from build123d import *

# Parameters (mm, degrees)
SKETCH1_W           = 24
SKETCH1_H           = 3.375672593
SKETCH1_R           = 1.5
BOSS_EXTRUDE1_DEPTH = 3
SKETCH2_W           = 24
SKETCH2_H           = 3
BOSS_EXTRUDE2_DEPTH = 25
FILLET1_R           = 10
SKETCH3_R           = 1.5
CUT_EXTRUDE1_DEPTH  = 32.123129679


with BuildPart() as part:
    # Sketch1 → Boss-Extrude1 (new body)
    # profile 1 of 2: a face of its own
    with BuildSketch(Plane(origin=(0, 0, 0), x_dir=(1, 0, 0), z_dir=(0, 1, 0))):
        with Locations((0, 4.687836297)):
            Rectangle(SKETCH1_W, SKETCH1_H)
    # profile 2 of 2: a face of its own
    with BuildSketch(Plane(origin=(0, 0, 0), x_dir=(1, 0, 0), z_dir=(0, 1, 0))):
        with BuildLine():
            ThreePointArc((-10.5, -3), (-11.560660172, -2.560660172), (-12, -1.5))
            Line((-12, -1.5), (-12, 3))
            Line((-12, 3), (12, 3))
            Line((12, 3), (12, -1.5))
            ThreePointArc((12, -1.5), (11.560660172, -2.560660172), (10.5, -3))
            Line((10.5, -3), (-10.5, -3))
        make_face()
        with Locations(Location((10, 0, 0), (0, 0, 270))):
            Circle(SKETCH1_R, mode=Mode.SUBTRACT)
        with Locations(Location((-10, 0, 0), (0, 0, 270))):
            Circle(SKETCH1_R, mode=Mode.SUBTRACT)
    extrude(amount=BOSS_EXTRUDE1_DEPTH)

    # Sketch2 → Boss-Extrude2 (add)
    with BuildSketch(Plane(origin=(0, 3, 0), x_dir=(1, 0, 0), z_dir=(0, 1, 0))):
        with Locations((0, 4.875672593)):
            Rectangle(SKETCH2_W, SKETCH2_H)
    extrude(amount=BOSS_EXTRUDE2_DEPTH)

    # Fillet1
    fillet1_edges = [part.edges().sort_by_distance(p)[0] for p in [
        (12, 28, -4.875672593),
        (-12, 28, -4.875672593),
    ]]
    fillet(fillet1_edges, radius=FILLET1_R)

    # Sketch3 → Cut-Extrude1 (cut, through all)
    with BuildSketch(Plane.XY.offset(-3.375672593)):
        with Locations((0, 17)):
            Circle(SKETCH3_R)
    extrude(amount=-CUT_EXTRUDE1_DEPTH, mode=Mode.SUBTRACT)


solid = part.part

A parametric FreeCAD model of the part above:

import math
import FreeCAD as App
import Part
import Sketcher
from FreeCAD import Vector
Q = App.Units.Quantity


def edges_at(feature, points):
    """Names of the edges that pass closest to the given points."""
    edges = feature.Shape.Edges
    near = lambda p: min(range(len(edges)), key=lambda i: edges[i].distToShape(Part.Vertex(*p))[0])
    return sorted({f"Edge{near(p) + 1}" for p in points})

doc = App.newDocument("Part")
body = doc.addObject("PartDesign::Body", "Body")

# Sketch on XZ plane
sketch1 = body.newObject("Sketcher::SketchObject", "Sketch")
sketch1.AttachmentSupport = (doc.getObject("XZ_Plane"), [""])
sketch1.MapMode = "FlatFace"
sketch1.addGeometry([
    Part.LineSegment(Vector(-12, -6.4, 0), Vector(-12, 1.5, 0)),  # 0
    Part.ArcOfCircle(Part.Circle(Vector(-10.5, 1.5, 0), Vector(0, 0, 1), 1.5), math.radians(90), math.radians(180)),  # 1
    Part.LineSegment(Vector(-10.5, 3, 0), Vector(10.5, 3, 0)),  # 2
    Part.ArcOfCircle(Part.Circle(Vector(10.5, 1.5, 0), Vector(0, 0, 1), 1.5), math.radians(0), math.radians(90)),  # 3
    Part.LineSegment(Vector(12, 1.5, 0), Vector(12, -6.4, 0)),  # 4
    Part.LineSegment(Vector(12, -6.4, 0), Vector(-12, -6.4, 0)),  # 5
    Part.Circle(Vector(-10, 0, 0), Vector(0, 0, 1), 1.5),  # 6
    Part.Circle(Vector(10, 0, 0), Vector(0, 0, 1), 1.5),  # 7
], False)
sketch1.addConstraint([
    Sketcher.Constraint("Tangent", 0, 2, 1, 2),
    Sketcher.Constraint("Tangent", 1, 1, 2, 1),
    Sketcher.Constraint("Tangent", 2, 2, 3, 2),
    Sketcher.Constraint("Tangent", 3, 1, 4, 1),
    Sketcher.Constraint("Coincident", 4, 2, 5, 1),
    Sketcher.Constraint("Coincident", 5, 2, 0, 1),
    Sketcher.Constraint("Vertical", 0),
    Sketcher.Constraint("Horizontal", 2),
    Sketcher.Constraint("Vertical", 4),
    Sketcher.Constraint("Horizontal", 5),
    Sketcher.Constraint("Equal", 1, 3),
    Sketcher.Constraint("Equal", 3, 6),
    Sketcher.Constraint("Equal", 6, 7),
    Sketcher.Constraint("Symmetric", 6, 3, 7, 3, -1, 1),
    Sketcher.Constraint("PointOnObject", 6, 3, -1),
    Sketcher.Constraint("Diameter", 6, Q("3 mm")),
    Sketcher.Constraint("DistanceX", 2, 1, 2, 2, Q("21 mm")),
    Sketcher.Constraint("DistanceX", 6, 3, -1, 1, Q("10 mm")),
    Sketcher.Constraint("DistanceX", 0, 2, -1, 1, Q("12 mm")),
    Sketcher.Constraint("DistanceY", -1, 1, 1, 1, Q("3 mm")),
    Sketcher.Constraint("DistanceY", 0, 1, 0, 2, Q("7.875673 mm")),
])
pad1 = body.newObject("PartDesign::Pad", "Pad")
pad1.Profile = sketch1
pad1.Length = 3
pad1.Reversed = True

# Sketch on XZ plane
sketch2 = body.newObject("Sketcher::SketchObject", "Sketch001")
sketch2.AttachmentSupport = (doc.getObject("XZ_Plane"), [""])
sketch2.MapMode = "FlatFace"
sketch2.AttachmentOffset = App.Placement(Vector(0, 0, -3), App.Rotation())
sketch2.addGeometry([
    Part.LineSegment(Vector(-12, -6.4, 0), Vector(-12, -3.4, 0)),
    Part.LineSegment(Vector(-12, -3.4, 0), Vector(12, -3.4, 0)),
    Part.LineSegment(Vector(12, -3.4, 0), Vector(12, -6.4, 0)),
    Part.LineSegment(Vector(12, -6.4, 0), Vector(-12, -6.4, 0)),
], False)
sketch2.addConstraint([
    Sketcher.Constraint("Coincident", 0, 2, 1, 1),
    Sketcher.Constraint("Coincident", 1, 2, 2, 1),
    Sketcher.Constraint("Coincident", 2, 2, 3, 1),
    Sketcher.Constraint("Coincident", 3, 2, 0, 1),
    Sketcher.Constraint("Vertical", 0),
    Sketcher.Constraint("Horizontal", 1),
    Sketcher.Constraint("Vertical", 2),
    Sketcher.Constraint("Horizontal", 3),
    Sketcher.Constraint("DistanceX", 1, 1, 1, 2, Q("24 mm")),
    Sketcher.Constraint("DistanceY", 0, 1, 0, 2, Q("3 mm")),
    Sketcher.Constraint("DistanceX", 0, 2, -1, 1, Q("12 mm")),
    Sketcher.Constraint("DistanceY", 0, 2, -1, 1, Q("3.375673 mm")),
])
pad2 = body.newObject("PartDesign::Pad", "Pad001")
pad2.Profile = sketch2
pad2.Length = 25
pad2.Reversed = True
doc.recompute()

fillet = body.newObject("PartDesign::Fillet", "Fillet")
fillet.Base = (pad2, edges_at(pad2, [(12, 28, -4.876), (-12, 28, -4.876)]))
fillet.Radius = 10

# Sketch on XY plane
sketch3 = body.newObject("Sketcher::SketchObject", "Sketch002")
sketch3.AttachmentSupport = (doc.getObject("XY_Plane"), [""])
sketch3.MapMode = "FlatFace"
sketch3.AttachmentOffset = App.Placement(Vector(0, 0, -3.375673), App.Rotation())
sketch3.addGeometry(Part.Circle(Vector(0, 17, 0), Vector(0, 0, 1), 1.5), False)
sketch3.addConstraint([
    Sketcher.Constraint("PointOnObject", 0, 3, -2),
    Sketcher.Constraint("Diameter", 0, Q("3 mm")),
    Sketcher.Constraint("DistanceY", -1, 1, 0, 3, Q("17 mm")),
])
pocket1 = body.newObject("PartDesign::Pocket", "Pocket")
pocket1.Profile = sketch3
pocket1.Type = "ThroughAll"

doc.recompute()
